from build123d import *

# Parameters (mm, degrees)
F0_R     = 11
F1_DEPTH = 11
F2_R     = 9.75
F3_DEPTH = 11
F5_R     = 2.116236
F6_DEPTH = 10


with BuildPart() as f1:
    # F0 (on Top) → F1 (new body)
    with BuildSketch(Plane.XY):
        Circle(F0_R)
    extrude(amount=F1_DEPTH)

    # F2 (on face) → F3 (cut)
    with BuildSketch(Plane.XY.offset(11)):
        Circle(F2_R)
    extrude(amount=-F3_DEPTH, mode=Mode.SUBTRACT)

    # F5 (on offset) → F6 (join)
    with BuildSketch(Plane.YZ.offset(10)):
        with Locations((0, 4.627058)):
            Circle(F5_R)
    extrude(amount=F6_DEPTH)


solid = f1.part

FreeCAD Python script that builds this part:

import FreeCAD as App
import Part
import Sketcher

V = App.Vector

doc = App.newDocument("Part")
params = doc.addObject("Spreadsheet::Sheet", "Params")
for row, (alias, value) in enumerate([
    ("sketch1_diameter", "22 mm"),
    ("pad1_length", "11 mm"),
    ("sketch2_diameter", "19.5 mm"),
    ("pocket1_length", "11 mm"),
    ("pad2_length", "10 mm"),
], start=1):
    params.set(f"A{row}", alias)
    params.set(f"B{row}", "=" + value)
    params.setAlias(f"B{row}", alias)

body = doc.addObject("PartDesign::Body", "Body")

sketch1 = doc.addObject("Sketcher::SketchObject", "Sketch")
body.addObject(sketch1)
sketch1.AttachmentSupport = (doc.XY_Plane, [""])
sketch1.MapMode = "FlatFace"
sketch1.addGeometry(Part.Circle(V(0, 0, 0), V(0, 0, 1), 11), False)
sketch1.addConstraint([
    Sketcher.Constraint("Coincident", 0, 3, -1, 1),
    Sketcher.Constraint("Diameter", 0, 22.0),
])
sketch1.setExpression("Constraints[1]", "Params.sketch1_diameter")
pad1 = doc.addObject("PartDesign::Pad", "Pad")
body.addObject(pad1)
pad1.Profile = sketch1
pad1.setExpression("Length", "Params.pad1_length")

sketch2 = doc.addObject("Sketcher::SketchObject", "Sketch001")
body.addObject(sketch2)
sketch2.AttachmentSupport = (doc.XY_Plane, [""])
sketch2.MapMode = "FlatFace"
sketch2.AttachmentOffset = App.Placement(V(0, 0, 11), App.Rotation())
sketch2.addGeometry(Part.Circle(V(0, 0, 0), V(0, 0, 1), 10), False)
sketch2.addConstraint([
    Sketcher.Constraint("Coincident", 0, 3, -1, 1),
    Sketcher.Constraint("Diameter", 0, 19.5),
])
sketch2.setExpression("Constraints[1]", "Params.sketch2_diameter")
pocket1 = doc.addObject("PartDesign::Pocket", "Pocket")
body.addObject(pocket1)
pocket1.Profile = sketch2
pocket1.setExpression("Length", "Params.pocket1_length")

sketch3 = doc.addObject("Sketcher::SketchObject", "Sketch002")
body.addObject(sketch3)
sketch3.AttachmentSupport = (doc.YZ_Plane, [""])
sketch3.MapMode = "FlatFace"
sketch3.AttachmentOffset = App.Placement(V(0, 0, 10), App.Rotation())
sketch3.addGeometry(Part.Circle(V(0, 4.6, 0), V(0, 0, 1), 2.1), False)
sketch3.addConstraint([
    Sketcher.Constraint("PointOnObject", 0, 3, -2),
    Sketcher.Constraint("Diameter", 0, 4.232472),
    Sketcher.Constraint("DistanceY", -1, 1, 0, 3, 4.627058),
])
pad2 = doc.addObject("PartDesign::Pad", "Pad001")
body.addObject(pad2)
pad2.Profile = sketch3
pad2.setExpression("Length", "Params.pad2_length")

doc.recompute()
